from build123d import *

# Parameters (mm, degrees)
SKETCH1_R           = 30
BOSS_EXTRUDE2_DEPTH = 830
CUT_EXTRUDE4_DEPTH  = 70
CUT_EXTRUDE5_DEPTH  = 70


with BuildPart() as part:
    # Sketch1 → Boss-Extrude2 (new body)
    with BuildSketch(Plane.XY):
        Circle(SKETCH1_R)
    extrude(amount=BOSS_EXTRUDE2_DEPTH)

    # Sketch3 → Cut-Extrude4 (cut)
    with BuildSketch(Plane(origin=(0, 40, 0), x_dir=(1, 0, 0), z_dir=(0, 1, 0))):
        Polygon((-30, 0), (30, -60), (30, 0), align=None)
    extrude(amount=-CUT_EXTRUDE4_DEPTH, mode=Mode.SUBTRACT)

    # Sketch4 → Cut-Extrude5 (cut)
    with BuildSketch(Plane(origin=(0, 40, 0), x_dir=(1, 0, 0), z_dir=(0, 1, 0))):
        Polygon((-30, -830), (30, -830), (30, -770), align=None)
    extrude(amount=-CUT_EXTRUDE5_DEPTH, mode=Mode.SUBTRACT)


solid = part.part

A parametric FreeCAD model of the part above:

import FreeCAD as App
import Part
import Sketcher
from FreeCAD import Vector
Q = App.Units.Quantity


def add_polygon(sketch, points):
    """Adds a closed chain of lines whose ends are joined by coincident constraints."""
    first, n = sketch.GeometryCount, len(points)
    for a, b in zip(points, points[1:] + points[:1]):
        sketch.addGeometry(Part.LineSegment(App.Vector(*a, 0), App.Vector(*b, 0)), False)
    for i in range(n):
        sketch.addConstraint(Sketcher.Constraint("Coincident", first + i, 2, first + (i + 1) % n, 1))

doc = App.newDocument("Part")
body = doc.addObject("PartDesign::Body", "Body")

# Sketch on XY plane
sketch1 = doc.addObject("Sketcher::SketchObject", "Sketch")
body.addObject(sketch1)
sketch1.AttachmentSupport = (doc.XY_Plane, [""])
sketch1.MapMode = "FlatFace"
sketch1.addGeometry(Part.Circle(Vector(0, 0, 0), Vector(0, 0, 1), 30), False)
sketch1.addConstraint([
    Sketcher.Constraint("Coincident", 0, 3, -1, 1),
    Sketcher.Constraint("Diameter", 0, Q("60 mm")),
])
pad1 = doc.addObject("PartDesign::Pad", "Pad")
body.addObject(pad1)
pad1.Profile = sketch1
pad1.Length = 830

# Sketch on XZ plane
sketch2 = doc.addObject("Sketcher::SketchObject", "Sketch001")
body.addObject(sketch2)
sketch2.AttachmentSupport = (doc.XZ_Plane, [""])
sketch2.MapMode = "FlatFace"
sketch2.AttachmentOffset = App.Placement(Vector(0, 0, -40), App.Rotation())
add_polygon(sketch2, [(-30, 0), (30, 60), (30, 0)])  # lines 0-2
sketch2.addConstraint([
    Sketcher.Constraint("Vertical", 1),
    Sketcher.Constraint("Horizontal", 2),
    Sketcher.Constraint("Symmetric", 1, 2, 2, 2, -1, 1),
    Sketcher.Constraint("Equal", 2, 1),
    Sketcher.Constraint("DistanceX", 2, 2, 2, 1, Q("60 mm")),
])
pocket1 = doc.addObject("PartDesign::Pocket", "Pocket")
body.addObject(pocket1)
pocket1.Profile = sketch2
pocket1.Length = 70
pocket1.Reversed = True

# Sketch on XZ plane
sketch3 = doc.addObject("Sketcher::SketchObject", "Sketch002")
body.addObject(sketch3)
sketch3.AttachmentSupport = (doc.XZ_Plane, [""])
sketch3.MapMode = "FlatFace"
sketch3.AttachmentOffset = App.Placement(Vector(0, 0, -40), App.Rotation())
add_polygon(sketch3, [(-30, 830), (30, 830), (30, 770)])  # lines 0-2
sketch3.addConstraint([
    Sketcher.Constraint("Horizontal", 0),
    Sketcher.Constraint("Vertical", 1),
    Sketcher.Constraint("Equal", 0, 1),
    Sketcher.Constraint("DistanceX", 0, 1, 0, 2, Q("60 mm")),
    Sketcher.Constraint("DistanceX", -1, 1, 0, 2, Q("30 mm")),
    Sketcher.Constraint("DistanceY", -1, 1, 0, 2, Q("830 mm")),
])
pocket2 = doc.addObject("PartDesign::Pocket", "Pocket001")
body.addObject(pocket2)
pocket2.Profile = sketch3
pocket2.Length = 70
pocket2.Reversed = True

doc.recompute()
